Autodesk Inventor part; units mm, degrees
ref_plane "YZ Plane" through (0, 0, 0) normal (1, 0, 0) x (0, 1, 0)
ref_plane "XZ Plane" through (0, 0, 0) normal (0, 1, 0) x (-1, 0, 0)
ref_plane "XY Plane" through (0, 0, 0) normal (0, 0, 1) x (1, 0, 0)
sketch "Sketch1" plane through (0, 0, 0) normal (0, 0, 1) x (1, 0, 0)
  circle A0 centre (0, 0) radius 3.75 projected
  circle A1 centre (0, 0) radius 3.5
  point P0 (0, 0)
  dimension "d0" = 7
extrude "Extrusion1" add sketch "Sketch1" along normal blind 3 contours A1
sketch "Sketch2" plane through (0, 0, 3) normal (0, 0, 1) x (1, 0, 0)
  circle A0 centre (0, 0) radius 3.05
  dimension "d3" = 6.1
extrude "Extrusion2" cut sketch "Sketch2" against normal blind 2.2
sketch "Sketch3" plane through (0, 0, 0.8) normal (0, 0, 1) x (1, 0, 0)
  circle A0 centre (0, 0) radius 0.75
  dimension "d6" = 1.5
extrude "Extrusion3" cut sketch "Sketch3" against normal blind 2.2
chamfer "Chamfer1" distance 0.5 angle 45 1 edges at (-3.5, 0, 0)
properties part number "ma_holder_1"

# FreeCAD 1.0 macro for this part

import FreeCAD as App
import Part
import Sketcher

V = App.Vector


def edges_at(feature, points):
    """Names of the edges that pass closest to the given points."""
    edges = feature.Shape.Edges
    near = lambda p: min(range(len(edges)), key=lambda i: edges[i].distToShape(Part.Vertex(*p))[0])
    return sorted({f"Edge{near(p) + 1}" for p in points})

doc = App.newDocument("Part")
body = doc.addObject("PartDesign::Body", "Body")

sketch1 = body.newObject("Sketcher::SketchObject", "Sketch")
sketch1.AttachmentSupport = (doc.getObject("XY_Plane"), [""])
sketch1.MapMode = "FlatFace"
sketch1.addGeometry(Part.Circle(V(0, 0, 0), V(0, 0, 1), 3.5), False)
sketch1.addConstraint(Sketcher.Constraint("Coincident", 0, 3, -1, 1))
sketch1.addConstraint(Sketcher.Constraint("Diameter", 0, 7.0))
pad1 = body.newObject("PartDesign::Pad", "Pad")
pad1.Profile = sketch1
pad1.Length = 3

sketch2 = body.newObject("Sketcher::SketchObject", "Sketch001")
sketch2.AttachmentSupport = (doc.getObject("XY_Plane"), [""])
sketch2.MapMode = "FlatFace"
sketch2.AttachmentOffset = App.Placement(V(0, 0, 3), App.Rotation())
sketch2.addGeometry(Part.Circle(V(0, 0, 0), V(0, 0, 1), 3), False)
sketch2.addConstraint(Sketcher.Constraint("Coincident", 0, 3, -1, 1))
sketch2.addConstraint(Sketcher.Constraint("Diameter", 0, 6.1))
pocket1 = body.newObject("PartDesign::Pocket", "Pocket")
pocket1.Profile = sketch2
pocket1.Length = 2.2

sketch3 = body.newObject("Sketcher::SketchObject", "Sketch002")
sketch3.AttachmentSupport = (doc.getObject("XY_Plane"), [""])
sketch3.MapMode = "FlatFace"
sketch3.AttachmentOffset = App.Placement(V(0, 0, 0.8), App.Rotation())
sketch3.addGeometry(Part.Circle(V(0, 0, 0), V(0, 0, 1), 0.8), False)
sketch3.addConstraint(Sketcher.Constraint("Coincident", 0, 3, -1, 1))
sketch3.addConstraint(Sketcher.Constraint("Diameter", 0, 1.5))
pocket2 = body.newObject("PartDesign::Pocket", "Pocket001")
pocket2.Profile = sketch3
pocket2.Length = 2.2
doc.recompute()

chamfer = body.newObject("PartDesign::Chamfer", "Chamfer")
chamfer.Base = (pocket2, edges_at(pocket2, [(-3.5, 0, 0)]))
chamfer.Size = 0.5

doc.recompute()
